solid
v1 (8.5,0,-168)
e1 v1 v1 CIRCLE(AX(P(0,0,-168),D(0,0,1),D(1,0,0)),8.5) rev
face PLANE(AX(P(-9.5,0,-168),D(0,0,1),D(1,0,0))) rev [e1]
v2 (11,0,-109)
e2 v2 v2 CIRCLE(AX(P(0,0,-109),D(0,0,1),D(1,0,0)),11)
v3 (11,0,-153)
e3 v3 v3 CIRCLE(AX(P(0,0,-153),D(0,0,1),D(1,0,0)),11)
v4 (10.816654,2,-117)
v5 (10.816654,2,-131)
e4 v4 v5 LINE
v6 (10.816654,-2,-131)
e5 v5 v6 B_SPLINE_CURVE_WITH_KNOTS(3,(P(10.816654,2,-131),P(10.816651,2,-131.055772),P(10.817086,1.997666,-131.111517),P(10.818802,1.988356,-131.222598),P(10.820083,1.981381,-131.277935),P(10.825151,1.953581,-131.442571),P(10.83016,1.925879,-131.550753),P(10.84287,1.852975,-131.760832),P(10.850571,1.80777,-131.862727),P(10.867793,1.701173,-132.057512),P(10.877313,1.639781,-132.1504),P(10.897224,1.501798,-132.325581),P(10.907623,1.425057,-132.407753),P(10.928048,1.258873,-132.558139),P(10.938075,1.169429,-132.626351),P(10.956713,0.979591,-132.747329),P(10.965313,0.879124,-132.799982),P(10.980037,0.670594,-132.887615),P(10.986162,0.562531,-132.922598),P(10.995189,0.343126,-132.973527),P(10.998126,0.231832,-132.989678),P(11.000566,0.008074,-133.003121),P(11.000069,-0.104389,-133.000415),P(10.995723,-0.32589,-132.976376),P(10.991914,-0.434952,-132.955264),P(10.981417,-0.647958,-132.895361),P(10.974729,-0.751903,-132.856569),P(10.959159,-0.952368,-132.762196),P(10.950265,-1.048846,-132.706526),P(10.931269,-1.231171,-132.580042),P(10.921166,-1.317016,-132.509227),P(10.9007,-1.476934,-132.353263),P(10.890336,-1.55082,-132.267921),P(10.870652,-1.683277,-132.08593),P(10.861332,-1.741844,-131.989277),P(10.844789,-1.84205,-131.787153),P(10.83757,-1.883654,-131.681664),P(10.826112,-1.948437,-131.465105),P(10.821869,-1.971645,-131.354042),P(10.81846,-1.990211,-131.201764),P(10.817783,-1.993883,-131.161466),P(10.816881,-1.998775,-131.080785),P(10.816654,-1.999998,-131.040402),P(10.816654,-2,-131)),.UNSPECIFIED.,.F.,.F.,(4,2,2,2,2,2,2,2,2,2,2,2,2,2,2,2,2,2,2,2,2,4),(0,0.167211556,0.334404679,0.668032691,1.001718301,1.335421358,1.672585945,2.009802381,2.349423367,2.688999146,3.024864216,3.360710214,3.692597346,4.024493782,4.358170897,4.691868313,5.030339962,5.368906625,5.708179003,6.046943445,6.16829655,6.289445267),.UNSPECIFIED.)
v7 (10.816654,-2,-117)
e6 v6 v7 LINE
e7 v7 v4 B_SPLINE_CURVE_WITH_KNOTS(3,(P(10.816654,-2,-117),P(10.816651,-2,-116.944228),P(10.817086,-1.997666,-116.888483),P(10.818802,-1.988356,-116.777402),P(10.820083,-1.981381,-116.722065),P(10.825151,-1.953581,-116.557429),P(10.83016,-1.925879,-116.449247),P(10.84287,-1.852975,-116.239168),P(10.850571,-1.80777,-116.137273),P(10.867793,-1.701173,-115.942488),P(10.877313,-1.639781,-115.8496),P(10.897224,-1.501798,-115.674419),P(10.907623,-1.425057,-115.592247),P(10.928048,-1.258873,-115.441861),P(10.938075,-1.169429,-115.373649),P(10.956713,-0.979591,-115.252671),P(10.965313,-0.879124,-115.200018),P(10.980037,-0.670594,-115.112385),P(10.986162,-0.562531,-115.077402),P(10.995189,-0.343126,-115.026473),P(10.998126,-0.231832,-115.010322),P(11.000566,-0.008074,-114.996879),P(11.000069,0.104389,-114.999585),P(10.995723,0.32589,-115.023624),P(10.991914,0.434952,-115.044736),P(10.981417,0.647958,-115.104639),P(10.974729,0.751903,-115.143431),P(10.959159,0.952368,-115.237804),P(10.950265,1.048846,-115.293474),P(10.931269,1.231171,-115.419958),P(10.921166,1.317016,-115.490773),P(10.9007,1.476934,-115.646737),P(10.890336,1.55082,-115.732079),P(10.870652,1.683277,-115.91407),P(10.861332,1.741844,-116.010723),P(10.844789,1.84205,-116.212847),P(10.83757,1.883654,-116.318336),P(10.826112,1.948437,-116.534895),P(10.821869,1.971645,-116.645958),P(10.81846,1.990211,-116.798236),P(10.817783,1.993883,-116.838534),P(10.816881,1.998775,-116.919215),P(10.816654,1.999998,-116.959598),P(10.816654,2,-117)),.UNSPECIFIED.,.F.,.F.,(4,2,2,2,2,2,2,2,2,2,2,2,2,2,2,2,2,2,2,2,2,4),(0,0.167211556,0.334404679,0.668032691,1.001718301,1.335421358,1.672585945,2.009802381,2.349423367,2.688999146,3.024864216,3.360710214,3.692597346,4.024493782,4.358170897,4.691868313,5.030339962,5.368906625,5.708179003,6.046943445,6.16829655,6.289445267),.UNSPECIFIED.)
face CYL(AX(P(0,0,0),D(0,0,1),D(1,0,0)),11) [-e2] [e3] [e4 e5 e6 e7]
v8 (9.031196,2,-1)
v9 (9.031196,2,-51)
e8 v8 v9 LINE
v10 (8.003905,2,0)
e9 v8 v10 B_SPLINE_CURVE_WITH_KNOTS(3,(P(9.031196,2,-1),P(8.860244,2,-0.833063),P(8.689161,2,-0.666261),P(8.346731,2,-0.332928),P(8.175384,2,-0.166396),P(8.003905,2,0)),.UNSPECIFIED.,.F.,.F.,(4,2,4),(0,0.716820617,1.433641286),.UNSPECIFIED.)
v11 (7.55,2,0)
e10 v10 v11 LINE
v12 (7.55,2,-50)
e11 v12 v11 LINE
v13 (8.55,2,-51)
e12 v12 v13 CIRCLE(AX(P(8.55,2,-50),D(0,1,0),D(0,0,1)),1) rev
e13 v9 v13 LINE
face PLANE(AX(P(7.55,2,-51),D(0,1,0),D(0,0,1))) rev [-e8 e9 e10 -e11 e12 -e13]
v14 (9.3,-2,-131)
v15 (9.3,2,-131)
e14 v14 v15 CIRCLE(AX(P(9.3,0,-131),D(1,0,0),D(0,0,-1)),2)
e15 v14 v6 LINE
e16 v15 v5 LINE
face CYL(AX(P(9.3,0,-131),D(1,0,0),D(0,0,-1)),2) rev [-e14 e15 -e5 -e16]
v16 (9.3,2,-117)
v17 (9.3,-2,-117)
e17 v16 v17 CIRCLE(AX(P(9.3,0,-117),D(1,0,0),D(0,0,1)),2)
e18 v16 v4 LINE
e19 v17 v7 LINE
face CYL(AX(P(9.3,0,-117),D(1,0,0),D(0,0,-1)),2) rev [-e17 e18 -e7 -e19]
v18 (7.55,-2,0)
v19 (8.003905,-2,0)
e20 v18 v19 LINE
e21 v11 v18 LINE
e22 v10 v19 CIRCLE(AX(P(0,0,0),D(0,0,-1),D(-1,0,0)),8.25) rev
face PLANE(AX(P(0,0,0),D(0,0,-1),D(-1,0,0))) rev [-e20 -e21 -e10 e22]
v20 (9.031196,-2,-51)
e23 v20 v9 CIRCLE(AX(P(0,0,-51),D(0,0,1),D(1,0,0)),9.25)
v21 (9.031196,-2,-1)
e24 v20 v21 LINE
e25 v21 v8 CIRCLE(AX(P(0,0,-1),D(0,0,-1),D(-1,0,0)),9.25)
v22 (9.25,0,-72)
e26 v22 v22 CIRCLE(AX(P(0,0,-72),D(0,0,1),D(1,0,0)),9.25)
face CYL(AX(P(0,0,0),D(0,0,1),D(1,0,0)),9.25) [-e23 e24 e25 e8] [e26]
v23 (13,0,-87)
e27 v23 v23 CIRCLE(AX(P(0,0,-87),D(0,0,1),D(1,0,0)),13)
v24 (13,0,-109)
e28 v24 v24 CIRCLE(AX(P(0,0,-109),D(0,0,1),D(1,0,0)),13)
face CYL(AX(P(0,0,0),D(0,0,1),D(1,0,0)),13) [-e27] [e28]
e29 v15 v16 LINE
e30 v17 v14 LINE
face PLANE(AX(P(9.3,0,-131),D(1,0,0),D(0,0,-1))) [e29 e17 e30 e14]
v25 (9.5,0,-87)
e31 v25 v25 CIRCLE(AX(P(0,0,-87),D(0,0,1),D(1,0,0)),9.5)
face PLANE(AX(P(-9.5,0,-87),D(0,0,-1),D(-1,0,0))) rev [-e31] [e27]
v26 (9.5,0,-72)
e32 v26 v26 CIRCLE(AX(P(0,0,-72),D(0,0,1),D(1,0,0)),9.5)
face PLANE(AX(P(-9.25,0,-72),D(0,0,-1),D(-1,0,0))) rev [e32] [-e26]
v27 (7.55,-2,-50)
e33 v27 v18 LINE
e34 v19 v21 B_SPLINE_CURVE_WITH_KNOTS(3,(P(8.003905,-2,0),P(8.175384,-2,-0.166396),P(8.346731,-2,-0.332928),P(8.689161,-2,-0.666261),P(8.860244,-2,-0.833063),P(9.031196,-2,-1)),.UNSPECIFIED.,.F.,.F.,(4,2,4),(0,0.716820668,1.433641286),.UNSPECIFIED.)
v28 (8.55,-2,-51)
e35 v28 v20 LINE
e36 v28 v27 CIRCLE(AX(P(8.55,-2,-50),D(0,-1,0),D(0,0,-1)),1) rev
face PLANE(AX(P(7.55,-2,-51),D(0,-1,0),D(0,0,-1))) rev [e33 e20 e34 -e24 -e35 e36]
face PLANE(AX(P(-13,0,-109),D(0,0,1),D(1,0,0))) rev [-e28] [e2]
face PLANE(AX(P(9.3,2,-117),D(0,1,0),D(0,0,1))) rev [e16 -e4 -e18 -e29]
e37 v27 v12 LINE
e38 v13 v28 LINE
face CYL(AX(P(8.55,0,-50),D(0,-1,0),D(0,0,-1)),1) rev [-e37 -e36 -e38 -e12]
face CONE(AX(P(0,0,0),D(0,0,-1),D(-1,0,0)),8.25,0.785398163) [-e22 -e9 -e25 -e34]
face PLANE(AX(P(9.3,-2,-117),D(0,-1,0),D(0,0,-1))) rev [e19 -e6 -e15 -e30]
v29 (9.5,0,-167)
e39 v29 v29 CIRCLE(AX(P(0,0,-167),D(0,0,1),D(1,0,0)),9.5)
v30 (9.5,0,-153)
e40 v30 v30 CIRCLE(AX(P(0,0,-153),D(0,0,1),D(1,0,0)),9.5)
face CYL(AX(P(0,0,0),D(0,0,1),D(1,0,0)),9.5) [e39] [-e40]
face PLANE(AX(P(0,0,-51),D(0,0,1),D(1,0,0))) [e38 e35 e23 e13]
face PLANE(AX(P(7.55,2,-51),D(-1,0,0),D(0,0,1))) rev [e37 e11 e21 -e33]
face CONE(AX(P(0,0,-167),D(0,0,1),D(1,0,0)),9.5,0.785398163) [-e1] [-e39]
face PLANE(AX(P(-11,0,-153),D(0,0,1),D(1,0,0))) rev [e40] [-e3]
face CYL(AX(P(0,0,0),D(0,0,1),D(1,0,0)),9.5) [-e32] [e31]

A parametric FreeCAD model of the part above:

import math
import FreeCAD as App
import Part
import Sketcher

V = App.Vector


def edges_at(feature, points):
    """Names of the edges that pass closest to the given points."""
    edges = feature.Shape.Edges
    near = lambda p: min(range(len(edges)), key=lambda i: edges[i].distToShape(Part.Vertex(*p))[0])
    return sorted({f"Edge{near(p) + 1}" for p in points})

doc = App.newDocument("Part")
body = doc.addObject("PartDesign::Body", "Body")

sketch1 = doc.addObject("Sketcher::SketchObject", "Sketch")
body.addObject(sketch1)
sketch1.AttachmentSupport = (doc.XZ_Plane, [""])
sketch1.MapMode = "FlatFace"
sketch1.addGeometry([
    Part.LineSegment(V(-9.25, 0, 0), V(0, 0, 0)),
    Part.LineSegment(V(0, 0, 0), V(0, -168, 0)),
    Part.LineSegment(V(0, -168, 0), V(-9.5, -168, 0)),
    Part.LineSegment(V(-9.5, -168, 0), V(-9.5, -153, 0)),
    Part.LineSegment(V(-9.5, -153, 0), V(-11, -153, 0)),
    Part.LineSegment(V(-11, -153, 0), V(-11, -109, 0)),
    Part.LineSegment(V(-11, -109, 0), V(-13, -109, 0)),
    Part.LineSegment(V(-13, -109, 0), V(-13, -87, 0)),
    Part.LineSegment(V(-13, -87, 0), V(-9.5, -87, 0)),
    Part.LineSegment(V(-9.5, -87, 0), V(-9.5, -72, 0)),
    Part.LineSegment(V(-9.5, -72, 0), V(-9.25, -72, 0)),
    Part.LineSegment(V(-9.25, -72, 0), V(-9.25, 0, 0)),
], False)
sketch1.addConstraint([
    Sketcher.Constraint("Coincident", 0, 2, 1, 1),
    Sketcher.Constraint("Coincident", 1, 2, 2, 1),
    Sketcher.Constraint("Coincident", 2, 2, 3, 1),
    Sketcher.Constraint("Coincident", 3, 2, 4, 1),
    Sketcher.Constraint("Coincident", 4, 2, 5, 1),
    Sketcher.Constraint("Coincident", 5, 2, 6, 1),
    Sketcher.Constraint("Coincident", 6, 2, 7, 1),
    Sketcher.Constraint("Coincident", 7, 2, 8, 1),
    Sketcher.Constraint("Coincident", 8, 2, 9, 1),
    Sketcher.Constraint("Coincident", 9, 2, 10, 1),
    Sketcher.Constraint("Coincident", 10, 2, 11, 1),
    Sketcher.Constraint("Coincident", 11, 2, 0, 1),
    Sketcher.Constraint("Horizontal", 0),
    Sketcher.Constraint("Vertical", 1),
    Sketcher.Constraint("Horizontal", 2),
    Sketcher.Constraint("Vertical", 3),
    Sketcher.Constraint("Horizontal", 4),
    Sketcher.Constraint("Vertical", 5),
    Sketcher.Constraint("Horizontal", 6),
    Sketcher.Constraint("Vertical", 7),
    Sketcher.Constraint("Horizontal", 8),
    Sketcher.Constraint("Vertical", 9),
    Sketcher.Constraint("Horizontal", 10),
    Sketcher.Constraint("Vertical", 11),
    Sketcher.Constraint("Coincident", 0, 2, -1, 1),
    Sketcher.Constraint("Vertical", 3, 2, 8, 2),
    Sketcher.Constraint("Equal", 3, 9),
    Sketcher.Constraint("DistanceX", 6, 2, 6, 1, 2.0),
    Sketcher.Constraint("DistanceY", 1, 2, 1, 1, 168.0),
    Sketcher.Constraint("DistanceY", 3, 1, 3, 2, 15.0),
    Sketcher.Constraint("DistanceY", 5, 1, 5, 2, 44.0),
    Sketcher.Constraint("DistanceY", 7, 1, 7, 2, 22.0),
    Sketcher.Constraint("DistanceX", 2, 2, 2, 1, 9.5),
    Sketcher.Constraint("DistanceX", 4, 2, 4, 1, 1.5),
    Sketcher.Constraint("DistanceX", 0, 1, 0, 2, 9.25),
])
revolution = doc.addObject("PartDesign::Revolution", "Revolution")
body.addObject(revolution)
revolution.Profile = sketch1
revolution.ReferenceAxis = (sketch1, ["V_Axis"])
revolution.Angle = 360

sketch2 = doc.addObject("Sketcher::SketchObject", "Sketch001")
body.addObject(sketch2)
sketch2.AttachmentSupport = (doc.XY_Plane, [""])
sketch2.MapMode = "FlatFace"
sketch2.addGeometry([
    Part.LineSegment(V(7.5, 2, 0), V(7.5, -2, 0)),
    Part.LineSegment(V(7.5, -2, 0), V(11.6, -2, 0)),
    Part.LineSegment(V(11.6, -2, 0), V(11.6, 2, 0)),
    Part.LineSegment(V(11.6, 2, 0), V(7.5, 2, 0)),
], False)
sketch2.addConstraint([
    Sketcher.Constraint("Coincident", 0, 2, 1, 1),
    Sketcher.Constraint("Coincident", 1, 2, 2, 1),
    Sketcher.Constraint("Coincident", 2, 2, 3, 1),
    Sketcher.Constraint("Coincident", 3, 2, 0, 1),
    Sketcher.Constraint("Vertical", 0),
    Sketcher.Constraint("Horizontal", 1),
    Sketcher.Constraint("Vertical", 2),
    Sketcher.Constraint("Horizontal", 3),
    Sketcher.Constraint("DistanceY", 0, 2, 0, 1, 4.0),
    Sketcher.Constraint("DistanceY", 0, 2, -1, 1, 2.0),
    Sketcher.Constraint("DistanceX", -1, 1, 0, 2, 7.55),
    Sketcher.Constraint("DistanceX", 1, 1, 1, 2, 4.079747),
])
pocket1 = doc.addObject("PartDesign::Pocket", "Pocket")
body.addObject(pocket1)
pocket1.Profile = sketch2
pocket1.Length = 51

sketch3 = doc.addObject("Sketcher::SketchObject", "Sketch002")
body.addObject(sketch3)
sketch3.AttachmentSupport = (doc.YZ_Plane, [""])
sketch3.MapMode = "FlatFace"
sketch3.AttachmentOffset = App.Placement(V(0, 0, 11), App.Rotation())
sketch3.addGeometry([
    Part.LineSegment(V(2, -131, 0), V(2, -117, 0)),
    Part.ArcOfCircle(Part.Circle(V(0, -117, 0), V(0, 0, 1), 2), math.radians(0), math.radians(180)),
    Part.LineSegment(V(-2, -117, 0), V(-2, -131, 0)),
    Part.ArcOfCircle(Part.Circle(V(0, -131, 0), V(0, 0, 1), 2), math.radians(180), math.radians(360)),
], False)
sketch3.addConstraint([
    Sketcher.Constraint("Tangent", 0, 2, 1, 1),
    Sketcher.Constraint("Tangent", 1, 2, 2, 1),
    Sketcher.Constraint("Tangent", 2, 2, 3, 1),
    Sketcher.Constraint("Tangent", 3, 2, 0, 1),
    Sketcher.Constraint("Vertical", 0),
    Sketcher.Constraint("Vertical", 2),
    Sketcher.Constraint("PointOnObject", 1, 3, -2),
    Sketcher.Constraint("Radius", 1, 2.0),
    Sketcher.Constraint("DistanceY", 0, 1, 0, 2, 14.0),
    Sketcher.Constraint("DistanceY", 1, 3, -1, 1, 117.0),
])
pocket2 = doc.addObject("PartDesign::Pocket", "Pocket001")
body.addObject(pocket2)
pocket2.Profile = sketch3
pocket2.Length = 1.7
doc.recompute()

chamfer = doc.addObject("PartDesign::Chamfer", "Chamfer")
body.addObject(chamfer)
chamfer.Base = (pocket2, edges_at(pocket2, [(-9.25, 0, 0), (-9.5, 0, -168)]))
chamfer.Size = 1
doc.recompute()

fillet = doc.addObject("PartDesign::Fillet", "Fillet")
body.addObject(fillet)
fillet.Base = (chamfer, edges_at(chamfer, [(7.55, 0, -51)]))
fillet.Radius = 1

doc.recompute()
